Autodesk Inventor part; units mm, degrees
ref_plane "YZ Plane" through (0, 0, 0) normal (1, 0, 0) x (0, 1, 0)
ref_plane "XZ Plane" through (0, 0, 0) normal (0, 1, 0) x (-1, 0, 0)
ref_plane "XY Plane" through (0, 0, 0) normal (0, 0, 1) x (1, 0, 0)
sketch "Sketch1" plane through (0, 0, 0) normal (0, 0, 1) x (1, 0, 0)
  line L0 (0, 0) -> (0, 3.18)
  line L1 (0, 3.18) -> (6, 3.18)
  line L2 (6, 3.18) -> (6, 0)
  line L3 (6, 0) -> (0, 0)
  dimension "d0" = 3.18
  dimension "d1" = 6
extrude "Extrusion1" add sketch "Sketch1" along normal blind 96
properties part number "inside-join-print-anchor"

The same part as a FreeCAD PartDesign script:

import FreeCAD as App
import Part
import Sketcher

V = App.Vector
Q = App.Units.Quantity

doc = App.newDocument("Part")
body = doc.addObject("PartDesign::Body", "Body")

sketch1 = body.newObject("Sketcher::SketchObject", "Sketch")
sketch1.AttachmentSupport = (doc.getObject("XY_Plane"), [""])
sketch1.MapMode = "FlatFace"
sketch1.addGeometry(Part.LineSegment(V(0, 3.2, 0), V(0, 0, 0)), False)
sketch1.addGeometry(Part.LineSegment(V(0, 0, 0), V(6, 0, 0)), False)
sketch1.addGeometry(Part.LineSegment(V(6, 0, 0), V(6, 3.2, 0)), False)
sketch1.addGeometry(Part.LineSegment(V(6, 3.2, 0), V(0, 3.2, 0)), False)
sketch1.addConstraint(Sketcher.Constraint("Coincident", 0, 2, 1, 1))
sketch1.addConstraint(Sketcher.Constraint("Coincident", 1, 2, 2, 1))
sketch1.addConstraint(Sketcher.Constraint("Coincident", 2, 2, 3, 1))
sketch1.addConstraint(Sketcher.Constraint("Coincident", 3, 2, 0, 1))
sketch1.addConstraint(Sketcher.Constraint("Vertical", 0))
sketch1.addConstraint(Sketcher.Constraint("Horizontal", 1))
sketch1.addConstraint(Sketcher.Constraint("Vertical", 2))
sketch1.addConstraint(Sketcher.Constraint("Horizontal", 3))
sketch1.addConstraint(Sketcher.Constraint("Coincident", 0, 2, -1, 1))
sketch1.addConstraint(Sketcher.Constraint("DistanceX", 1, 1, 1, 2, Q("6 mm")))
sketch1.addConstraint(Sketcher.Constraint("DistanceY", 0, 2, 0, 1, Q("3.18 mm")))
pad1 = body.newObject("PartDesign::Pad", "Pad")
pad1.Profile = sketch1
pad1.Length = 96

doc.recompute()
